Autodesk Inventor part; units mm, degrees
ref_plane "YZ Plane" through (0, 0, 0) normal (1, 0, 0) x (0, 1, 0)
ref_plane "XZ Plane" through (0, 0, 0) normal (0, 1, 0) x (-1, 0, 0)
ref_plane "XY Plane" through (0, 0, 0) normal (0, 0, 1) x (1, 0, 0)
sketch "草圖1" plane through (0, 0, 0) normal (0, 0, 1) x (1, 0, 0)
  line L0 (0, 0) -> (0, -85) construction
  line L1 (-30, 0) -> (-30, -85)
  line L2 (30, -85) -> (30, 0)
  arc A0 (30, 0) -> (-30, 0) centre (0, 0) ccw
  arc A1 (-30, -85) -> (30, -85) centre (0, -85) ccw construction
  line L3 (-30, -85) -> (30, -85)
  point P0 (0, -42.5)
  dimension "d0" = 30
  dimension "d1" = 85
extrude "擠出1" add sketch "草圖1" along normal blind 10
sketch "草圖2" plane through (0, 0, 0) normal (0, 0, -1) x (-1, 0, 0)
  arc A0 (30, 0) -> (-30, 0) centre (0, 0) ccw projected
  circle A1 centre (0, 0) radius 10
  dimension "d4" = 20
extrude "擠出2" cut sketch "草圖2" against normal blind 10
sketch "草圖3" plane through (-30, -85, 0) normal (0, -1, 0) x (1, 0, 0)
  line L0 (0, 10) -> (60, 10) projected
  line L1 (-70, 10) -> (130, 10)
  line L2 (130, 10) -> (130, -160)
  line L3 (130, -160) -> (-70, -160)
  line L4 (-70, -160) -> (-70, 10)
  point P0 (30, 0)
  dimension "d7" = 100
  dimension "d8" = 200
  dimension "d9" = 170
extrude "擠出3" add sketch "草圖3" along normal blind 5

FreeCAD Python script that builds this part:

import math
import FreeCAD as App
import Part
import Sketcher
from FreeCAD import Vector
Q = App.Units.Quantity

doc = App.newDocument("Part")
params = doc.addObject("Spreadsheet::Sheet", "Params")
for row, (alias, value) in enumerate([
    ("sketch1_radius", "30 mm"),
    ("sketch1_height", "85 mm"),
    ("pad1_length", "10 mm"),
    ("sketch2_diameter", "20 mm"),
    ("pocket1_length", "10 mm"),
    ("sketch3_width", "200 mm"),
    ("sketch3_height", "170 mm"),
    ("pad2_length", "5 mm"),
], start=1):
    params.set(f"A{row}", alias)
    params.set(f"B{row}", "=" + value)
    params.setAlias(f"B{row}", alias)

body = doc.addObject("PartDesign::Body", "Body")

# Sketch on XY plane
sketch1 = body.newObject("Sketcher::SketchObject", "Sketch")
sketch1.AttachmentSupport = (doc.getObject("XY_Plane"), [""])
sketch1.MapMode = "FlatFace"
sketch1.addGeometry(Part.ArcOfCircle(Part.Circle(Vector(0, 0, 0), Vector(0, 0, 1), 30), math.radians(0), math.radians(180)), False)
sketch1.addGeometry(Part.LineSegment(Vector(-30, 0, 0), Vector(-30, -85, 0)), False)
sketch1.addGeometry(Part.LineSegment(Vector(-30, -85, 0), Vector(30, -85, 0)), False)
sketch1.addGeometry(Part.LineSegment(Vector(30, -85, 0), Vector(30, 0, 0)), False)
sketch1.addConstraint(Sketcher.Constraint("Tangent", 0, 2, 1, 1))
sketch1.addConstraint(Sketcher.Constraint("Coincident", 1, 2, 2, 1))
sketch1.addConstraint(Sketcher.Constraint("Coincident", 2, 2, 3, 1))
sketch1.addConstraint(Sketcher.Constraint("Tangent", 3, 2, 0, 1))
sketch1.addConstraint(Sketcher.Constraint("Vertical", 1))
sketch1.addConstraint(Sketcher.Constraint("Horizontal", 2))
sketch1.addConstraint(Sketcher.Constraint("Vertical", 3))
sketch1.addConstraint(Sketcher.Constraint("Coincident", 0, 3, -1, 1))
sketch1.addConstraint(Sketcher.Constraint("Radius", 0, Q("30 mm")))
sketch1.addConstraint(Sketcher.Constraint("DistanceY", 1, 2, 1, 1, Q("85 mm")))
sketch1.setExpression("Constraints[8]", "Params.sketch1_radius")
sketch1.setExpression("Constraints[9]", "Params.sketch1_height")
pad1 = body.newObject("PartDesign::Pad", "Pad")
pad1.Profile = sketch1
pad1.setExpression("Length", "Params.pad1_length")

# Sketch on XY plane
sketch2 = body.newObject("Sketcher::SketchObject", "Sketch001")
sketch2.AttachmentSupport = (doc.getObject("XY_Plane"), [""])
sketch2.MapMode = "FlatFace"
sketch2.addGeometry(Part.Circle(Vector(0, 0, 0), Vector(0, 0, 1), 10), False)
sketch2.addConstraint(Sketcher.Constraint("Coincident", 0, 3, -1, 1))
sketch2.addConstraint(Sketcher.Constraint("Diameter", 0, Q("20 mm")))
sketch2.setExpression("Constraints[1]", "Params.sketch2_diameter")
pocket1 = body.newObject("PartDesign::Pocket", "Pocket")
pocket1.Profile = sketch2
pocket1.setExpression("Length", "Params.pocket1_length")
pocket1.Reversed = True

# Sketch on XZ plane
sketch3 = body.newObject("Sketcher::SketchObject", "Sketch002")
sketch3.AttachmentSupport = (doc.getObject("XZ_Plane"), [""])
sketch3.MapMode = "FlatFace"
sketch3.AttachmentOffset = App.Placement(Vector(0, 0, 85), App.Rotation())
sketch3.addGeometry(Part.LineSegment(Vector(100, 10, 0), Vector(-100, 10, 0)), False)
sketch3.addGeometry(Part.LineSegment(Vector(-100, 10, 0), Vector(-100, -160, 0)), False)
sketch3.addGeometry(Part.LineSegment(Vector(-100, -160, 0), Vector(100, -160, 0)), False)
sketch3.addGeometry(Part.LineSegment(Vector(100, -160, 0), Vector(100, 10, 0)), False)
sketch3.addConstraint(Sketcher.Constraint("Coincident", 0, 2, 1, 1))
sketch3.addConstraint(Sketcher.Constraint("Coincident", 1, 2, 2, 1))
sketch3.addConstraint(Sketcher.Constraint("Coincident", 2, 2, 3, 1))
sketch3.addConstraint(Sketcher.Constraint("Coincident", 3, 2, 0, 1))
sketch3.addConstraint(Sketcher.Constraint("Horizontal", 0))
sketch3.addConstraint(Sketcher.Constraint("Vertical", 1))
sketch3.addConstraint(Sketcher.Constraint("Horizontal", 2))
sketch3.addConstraint(Sketcher.Constraint("Vertical", 3))
sketch3.addConstraint(Sketcher.Constraint("DistanceX", 0, 2, 0, 1, Q("200 mm")))
sketch3.addConstraint(Sketcher.Constraint("DistanceY", 1, 2, 1, 1, Q("170 mm")))
sketch3.addConstraint(Sketcher.Constraint("DistanceX", 0, 2, -1, 1, Q("100 mm")))
sketch3.addConstraint(Sketcher.Constraint("DistanceY", -1, 1, 0, 2, Q("10 mm")))
sketch3.setExpression("Constraints[8]", "Params.sketch3_width")
sketch3.setExpression("Constraints[9]", "Params.sketch3_height")
pad2 = body.newObject("PartDesign::Pad", "Pad001")
pad2.Profile = sketch3
pad2.setExpression("Length", "Params.pad2_length")

doc.recompute()
